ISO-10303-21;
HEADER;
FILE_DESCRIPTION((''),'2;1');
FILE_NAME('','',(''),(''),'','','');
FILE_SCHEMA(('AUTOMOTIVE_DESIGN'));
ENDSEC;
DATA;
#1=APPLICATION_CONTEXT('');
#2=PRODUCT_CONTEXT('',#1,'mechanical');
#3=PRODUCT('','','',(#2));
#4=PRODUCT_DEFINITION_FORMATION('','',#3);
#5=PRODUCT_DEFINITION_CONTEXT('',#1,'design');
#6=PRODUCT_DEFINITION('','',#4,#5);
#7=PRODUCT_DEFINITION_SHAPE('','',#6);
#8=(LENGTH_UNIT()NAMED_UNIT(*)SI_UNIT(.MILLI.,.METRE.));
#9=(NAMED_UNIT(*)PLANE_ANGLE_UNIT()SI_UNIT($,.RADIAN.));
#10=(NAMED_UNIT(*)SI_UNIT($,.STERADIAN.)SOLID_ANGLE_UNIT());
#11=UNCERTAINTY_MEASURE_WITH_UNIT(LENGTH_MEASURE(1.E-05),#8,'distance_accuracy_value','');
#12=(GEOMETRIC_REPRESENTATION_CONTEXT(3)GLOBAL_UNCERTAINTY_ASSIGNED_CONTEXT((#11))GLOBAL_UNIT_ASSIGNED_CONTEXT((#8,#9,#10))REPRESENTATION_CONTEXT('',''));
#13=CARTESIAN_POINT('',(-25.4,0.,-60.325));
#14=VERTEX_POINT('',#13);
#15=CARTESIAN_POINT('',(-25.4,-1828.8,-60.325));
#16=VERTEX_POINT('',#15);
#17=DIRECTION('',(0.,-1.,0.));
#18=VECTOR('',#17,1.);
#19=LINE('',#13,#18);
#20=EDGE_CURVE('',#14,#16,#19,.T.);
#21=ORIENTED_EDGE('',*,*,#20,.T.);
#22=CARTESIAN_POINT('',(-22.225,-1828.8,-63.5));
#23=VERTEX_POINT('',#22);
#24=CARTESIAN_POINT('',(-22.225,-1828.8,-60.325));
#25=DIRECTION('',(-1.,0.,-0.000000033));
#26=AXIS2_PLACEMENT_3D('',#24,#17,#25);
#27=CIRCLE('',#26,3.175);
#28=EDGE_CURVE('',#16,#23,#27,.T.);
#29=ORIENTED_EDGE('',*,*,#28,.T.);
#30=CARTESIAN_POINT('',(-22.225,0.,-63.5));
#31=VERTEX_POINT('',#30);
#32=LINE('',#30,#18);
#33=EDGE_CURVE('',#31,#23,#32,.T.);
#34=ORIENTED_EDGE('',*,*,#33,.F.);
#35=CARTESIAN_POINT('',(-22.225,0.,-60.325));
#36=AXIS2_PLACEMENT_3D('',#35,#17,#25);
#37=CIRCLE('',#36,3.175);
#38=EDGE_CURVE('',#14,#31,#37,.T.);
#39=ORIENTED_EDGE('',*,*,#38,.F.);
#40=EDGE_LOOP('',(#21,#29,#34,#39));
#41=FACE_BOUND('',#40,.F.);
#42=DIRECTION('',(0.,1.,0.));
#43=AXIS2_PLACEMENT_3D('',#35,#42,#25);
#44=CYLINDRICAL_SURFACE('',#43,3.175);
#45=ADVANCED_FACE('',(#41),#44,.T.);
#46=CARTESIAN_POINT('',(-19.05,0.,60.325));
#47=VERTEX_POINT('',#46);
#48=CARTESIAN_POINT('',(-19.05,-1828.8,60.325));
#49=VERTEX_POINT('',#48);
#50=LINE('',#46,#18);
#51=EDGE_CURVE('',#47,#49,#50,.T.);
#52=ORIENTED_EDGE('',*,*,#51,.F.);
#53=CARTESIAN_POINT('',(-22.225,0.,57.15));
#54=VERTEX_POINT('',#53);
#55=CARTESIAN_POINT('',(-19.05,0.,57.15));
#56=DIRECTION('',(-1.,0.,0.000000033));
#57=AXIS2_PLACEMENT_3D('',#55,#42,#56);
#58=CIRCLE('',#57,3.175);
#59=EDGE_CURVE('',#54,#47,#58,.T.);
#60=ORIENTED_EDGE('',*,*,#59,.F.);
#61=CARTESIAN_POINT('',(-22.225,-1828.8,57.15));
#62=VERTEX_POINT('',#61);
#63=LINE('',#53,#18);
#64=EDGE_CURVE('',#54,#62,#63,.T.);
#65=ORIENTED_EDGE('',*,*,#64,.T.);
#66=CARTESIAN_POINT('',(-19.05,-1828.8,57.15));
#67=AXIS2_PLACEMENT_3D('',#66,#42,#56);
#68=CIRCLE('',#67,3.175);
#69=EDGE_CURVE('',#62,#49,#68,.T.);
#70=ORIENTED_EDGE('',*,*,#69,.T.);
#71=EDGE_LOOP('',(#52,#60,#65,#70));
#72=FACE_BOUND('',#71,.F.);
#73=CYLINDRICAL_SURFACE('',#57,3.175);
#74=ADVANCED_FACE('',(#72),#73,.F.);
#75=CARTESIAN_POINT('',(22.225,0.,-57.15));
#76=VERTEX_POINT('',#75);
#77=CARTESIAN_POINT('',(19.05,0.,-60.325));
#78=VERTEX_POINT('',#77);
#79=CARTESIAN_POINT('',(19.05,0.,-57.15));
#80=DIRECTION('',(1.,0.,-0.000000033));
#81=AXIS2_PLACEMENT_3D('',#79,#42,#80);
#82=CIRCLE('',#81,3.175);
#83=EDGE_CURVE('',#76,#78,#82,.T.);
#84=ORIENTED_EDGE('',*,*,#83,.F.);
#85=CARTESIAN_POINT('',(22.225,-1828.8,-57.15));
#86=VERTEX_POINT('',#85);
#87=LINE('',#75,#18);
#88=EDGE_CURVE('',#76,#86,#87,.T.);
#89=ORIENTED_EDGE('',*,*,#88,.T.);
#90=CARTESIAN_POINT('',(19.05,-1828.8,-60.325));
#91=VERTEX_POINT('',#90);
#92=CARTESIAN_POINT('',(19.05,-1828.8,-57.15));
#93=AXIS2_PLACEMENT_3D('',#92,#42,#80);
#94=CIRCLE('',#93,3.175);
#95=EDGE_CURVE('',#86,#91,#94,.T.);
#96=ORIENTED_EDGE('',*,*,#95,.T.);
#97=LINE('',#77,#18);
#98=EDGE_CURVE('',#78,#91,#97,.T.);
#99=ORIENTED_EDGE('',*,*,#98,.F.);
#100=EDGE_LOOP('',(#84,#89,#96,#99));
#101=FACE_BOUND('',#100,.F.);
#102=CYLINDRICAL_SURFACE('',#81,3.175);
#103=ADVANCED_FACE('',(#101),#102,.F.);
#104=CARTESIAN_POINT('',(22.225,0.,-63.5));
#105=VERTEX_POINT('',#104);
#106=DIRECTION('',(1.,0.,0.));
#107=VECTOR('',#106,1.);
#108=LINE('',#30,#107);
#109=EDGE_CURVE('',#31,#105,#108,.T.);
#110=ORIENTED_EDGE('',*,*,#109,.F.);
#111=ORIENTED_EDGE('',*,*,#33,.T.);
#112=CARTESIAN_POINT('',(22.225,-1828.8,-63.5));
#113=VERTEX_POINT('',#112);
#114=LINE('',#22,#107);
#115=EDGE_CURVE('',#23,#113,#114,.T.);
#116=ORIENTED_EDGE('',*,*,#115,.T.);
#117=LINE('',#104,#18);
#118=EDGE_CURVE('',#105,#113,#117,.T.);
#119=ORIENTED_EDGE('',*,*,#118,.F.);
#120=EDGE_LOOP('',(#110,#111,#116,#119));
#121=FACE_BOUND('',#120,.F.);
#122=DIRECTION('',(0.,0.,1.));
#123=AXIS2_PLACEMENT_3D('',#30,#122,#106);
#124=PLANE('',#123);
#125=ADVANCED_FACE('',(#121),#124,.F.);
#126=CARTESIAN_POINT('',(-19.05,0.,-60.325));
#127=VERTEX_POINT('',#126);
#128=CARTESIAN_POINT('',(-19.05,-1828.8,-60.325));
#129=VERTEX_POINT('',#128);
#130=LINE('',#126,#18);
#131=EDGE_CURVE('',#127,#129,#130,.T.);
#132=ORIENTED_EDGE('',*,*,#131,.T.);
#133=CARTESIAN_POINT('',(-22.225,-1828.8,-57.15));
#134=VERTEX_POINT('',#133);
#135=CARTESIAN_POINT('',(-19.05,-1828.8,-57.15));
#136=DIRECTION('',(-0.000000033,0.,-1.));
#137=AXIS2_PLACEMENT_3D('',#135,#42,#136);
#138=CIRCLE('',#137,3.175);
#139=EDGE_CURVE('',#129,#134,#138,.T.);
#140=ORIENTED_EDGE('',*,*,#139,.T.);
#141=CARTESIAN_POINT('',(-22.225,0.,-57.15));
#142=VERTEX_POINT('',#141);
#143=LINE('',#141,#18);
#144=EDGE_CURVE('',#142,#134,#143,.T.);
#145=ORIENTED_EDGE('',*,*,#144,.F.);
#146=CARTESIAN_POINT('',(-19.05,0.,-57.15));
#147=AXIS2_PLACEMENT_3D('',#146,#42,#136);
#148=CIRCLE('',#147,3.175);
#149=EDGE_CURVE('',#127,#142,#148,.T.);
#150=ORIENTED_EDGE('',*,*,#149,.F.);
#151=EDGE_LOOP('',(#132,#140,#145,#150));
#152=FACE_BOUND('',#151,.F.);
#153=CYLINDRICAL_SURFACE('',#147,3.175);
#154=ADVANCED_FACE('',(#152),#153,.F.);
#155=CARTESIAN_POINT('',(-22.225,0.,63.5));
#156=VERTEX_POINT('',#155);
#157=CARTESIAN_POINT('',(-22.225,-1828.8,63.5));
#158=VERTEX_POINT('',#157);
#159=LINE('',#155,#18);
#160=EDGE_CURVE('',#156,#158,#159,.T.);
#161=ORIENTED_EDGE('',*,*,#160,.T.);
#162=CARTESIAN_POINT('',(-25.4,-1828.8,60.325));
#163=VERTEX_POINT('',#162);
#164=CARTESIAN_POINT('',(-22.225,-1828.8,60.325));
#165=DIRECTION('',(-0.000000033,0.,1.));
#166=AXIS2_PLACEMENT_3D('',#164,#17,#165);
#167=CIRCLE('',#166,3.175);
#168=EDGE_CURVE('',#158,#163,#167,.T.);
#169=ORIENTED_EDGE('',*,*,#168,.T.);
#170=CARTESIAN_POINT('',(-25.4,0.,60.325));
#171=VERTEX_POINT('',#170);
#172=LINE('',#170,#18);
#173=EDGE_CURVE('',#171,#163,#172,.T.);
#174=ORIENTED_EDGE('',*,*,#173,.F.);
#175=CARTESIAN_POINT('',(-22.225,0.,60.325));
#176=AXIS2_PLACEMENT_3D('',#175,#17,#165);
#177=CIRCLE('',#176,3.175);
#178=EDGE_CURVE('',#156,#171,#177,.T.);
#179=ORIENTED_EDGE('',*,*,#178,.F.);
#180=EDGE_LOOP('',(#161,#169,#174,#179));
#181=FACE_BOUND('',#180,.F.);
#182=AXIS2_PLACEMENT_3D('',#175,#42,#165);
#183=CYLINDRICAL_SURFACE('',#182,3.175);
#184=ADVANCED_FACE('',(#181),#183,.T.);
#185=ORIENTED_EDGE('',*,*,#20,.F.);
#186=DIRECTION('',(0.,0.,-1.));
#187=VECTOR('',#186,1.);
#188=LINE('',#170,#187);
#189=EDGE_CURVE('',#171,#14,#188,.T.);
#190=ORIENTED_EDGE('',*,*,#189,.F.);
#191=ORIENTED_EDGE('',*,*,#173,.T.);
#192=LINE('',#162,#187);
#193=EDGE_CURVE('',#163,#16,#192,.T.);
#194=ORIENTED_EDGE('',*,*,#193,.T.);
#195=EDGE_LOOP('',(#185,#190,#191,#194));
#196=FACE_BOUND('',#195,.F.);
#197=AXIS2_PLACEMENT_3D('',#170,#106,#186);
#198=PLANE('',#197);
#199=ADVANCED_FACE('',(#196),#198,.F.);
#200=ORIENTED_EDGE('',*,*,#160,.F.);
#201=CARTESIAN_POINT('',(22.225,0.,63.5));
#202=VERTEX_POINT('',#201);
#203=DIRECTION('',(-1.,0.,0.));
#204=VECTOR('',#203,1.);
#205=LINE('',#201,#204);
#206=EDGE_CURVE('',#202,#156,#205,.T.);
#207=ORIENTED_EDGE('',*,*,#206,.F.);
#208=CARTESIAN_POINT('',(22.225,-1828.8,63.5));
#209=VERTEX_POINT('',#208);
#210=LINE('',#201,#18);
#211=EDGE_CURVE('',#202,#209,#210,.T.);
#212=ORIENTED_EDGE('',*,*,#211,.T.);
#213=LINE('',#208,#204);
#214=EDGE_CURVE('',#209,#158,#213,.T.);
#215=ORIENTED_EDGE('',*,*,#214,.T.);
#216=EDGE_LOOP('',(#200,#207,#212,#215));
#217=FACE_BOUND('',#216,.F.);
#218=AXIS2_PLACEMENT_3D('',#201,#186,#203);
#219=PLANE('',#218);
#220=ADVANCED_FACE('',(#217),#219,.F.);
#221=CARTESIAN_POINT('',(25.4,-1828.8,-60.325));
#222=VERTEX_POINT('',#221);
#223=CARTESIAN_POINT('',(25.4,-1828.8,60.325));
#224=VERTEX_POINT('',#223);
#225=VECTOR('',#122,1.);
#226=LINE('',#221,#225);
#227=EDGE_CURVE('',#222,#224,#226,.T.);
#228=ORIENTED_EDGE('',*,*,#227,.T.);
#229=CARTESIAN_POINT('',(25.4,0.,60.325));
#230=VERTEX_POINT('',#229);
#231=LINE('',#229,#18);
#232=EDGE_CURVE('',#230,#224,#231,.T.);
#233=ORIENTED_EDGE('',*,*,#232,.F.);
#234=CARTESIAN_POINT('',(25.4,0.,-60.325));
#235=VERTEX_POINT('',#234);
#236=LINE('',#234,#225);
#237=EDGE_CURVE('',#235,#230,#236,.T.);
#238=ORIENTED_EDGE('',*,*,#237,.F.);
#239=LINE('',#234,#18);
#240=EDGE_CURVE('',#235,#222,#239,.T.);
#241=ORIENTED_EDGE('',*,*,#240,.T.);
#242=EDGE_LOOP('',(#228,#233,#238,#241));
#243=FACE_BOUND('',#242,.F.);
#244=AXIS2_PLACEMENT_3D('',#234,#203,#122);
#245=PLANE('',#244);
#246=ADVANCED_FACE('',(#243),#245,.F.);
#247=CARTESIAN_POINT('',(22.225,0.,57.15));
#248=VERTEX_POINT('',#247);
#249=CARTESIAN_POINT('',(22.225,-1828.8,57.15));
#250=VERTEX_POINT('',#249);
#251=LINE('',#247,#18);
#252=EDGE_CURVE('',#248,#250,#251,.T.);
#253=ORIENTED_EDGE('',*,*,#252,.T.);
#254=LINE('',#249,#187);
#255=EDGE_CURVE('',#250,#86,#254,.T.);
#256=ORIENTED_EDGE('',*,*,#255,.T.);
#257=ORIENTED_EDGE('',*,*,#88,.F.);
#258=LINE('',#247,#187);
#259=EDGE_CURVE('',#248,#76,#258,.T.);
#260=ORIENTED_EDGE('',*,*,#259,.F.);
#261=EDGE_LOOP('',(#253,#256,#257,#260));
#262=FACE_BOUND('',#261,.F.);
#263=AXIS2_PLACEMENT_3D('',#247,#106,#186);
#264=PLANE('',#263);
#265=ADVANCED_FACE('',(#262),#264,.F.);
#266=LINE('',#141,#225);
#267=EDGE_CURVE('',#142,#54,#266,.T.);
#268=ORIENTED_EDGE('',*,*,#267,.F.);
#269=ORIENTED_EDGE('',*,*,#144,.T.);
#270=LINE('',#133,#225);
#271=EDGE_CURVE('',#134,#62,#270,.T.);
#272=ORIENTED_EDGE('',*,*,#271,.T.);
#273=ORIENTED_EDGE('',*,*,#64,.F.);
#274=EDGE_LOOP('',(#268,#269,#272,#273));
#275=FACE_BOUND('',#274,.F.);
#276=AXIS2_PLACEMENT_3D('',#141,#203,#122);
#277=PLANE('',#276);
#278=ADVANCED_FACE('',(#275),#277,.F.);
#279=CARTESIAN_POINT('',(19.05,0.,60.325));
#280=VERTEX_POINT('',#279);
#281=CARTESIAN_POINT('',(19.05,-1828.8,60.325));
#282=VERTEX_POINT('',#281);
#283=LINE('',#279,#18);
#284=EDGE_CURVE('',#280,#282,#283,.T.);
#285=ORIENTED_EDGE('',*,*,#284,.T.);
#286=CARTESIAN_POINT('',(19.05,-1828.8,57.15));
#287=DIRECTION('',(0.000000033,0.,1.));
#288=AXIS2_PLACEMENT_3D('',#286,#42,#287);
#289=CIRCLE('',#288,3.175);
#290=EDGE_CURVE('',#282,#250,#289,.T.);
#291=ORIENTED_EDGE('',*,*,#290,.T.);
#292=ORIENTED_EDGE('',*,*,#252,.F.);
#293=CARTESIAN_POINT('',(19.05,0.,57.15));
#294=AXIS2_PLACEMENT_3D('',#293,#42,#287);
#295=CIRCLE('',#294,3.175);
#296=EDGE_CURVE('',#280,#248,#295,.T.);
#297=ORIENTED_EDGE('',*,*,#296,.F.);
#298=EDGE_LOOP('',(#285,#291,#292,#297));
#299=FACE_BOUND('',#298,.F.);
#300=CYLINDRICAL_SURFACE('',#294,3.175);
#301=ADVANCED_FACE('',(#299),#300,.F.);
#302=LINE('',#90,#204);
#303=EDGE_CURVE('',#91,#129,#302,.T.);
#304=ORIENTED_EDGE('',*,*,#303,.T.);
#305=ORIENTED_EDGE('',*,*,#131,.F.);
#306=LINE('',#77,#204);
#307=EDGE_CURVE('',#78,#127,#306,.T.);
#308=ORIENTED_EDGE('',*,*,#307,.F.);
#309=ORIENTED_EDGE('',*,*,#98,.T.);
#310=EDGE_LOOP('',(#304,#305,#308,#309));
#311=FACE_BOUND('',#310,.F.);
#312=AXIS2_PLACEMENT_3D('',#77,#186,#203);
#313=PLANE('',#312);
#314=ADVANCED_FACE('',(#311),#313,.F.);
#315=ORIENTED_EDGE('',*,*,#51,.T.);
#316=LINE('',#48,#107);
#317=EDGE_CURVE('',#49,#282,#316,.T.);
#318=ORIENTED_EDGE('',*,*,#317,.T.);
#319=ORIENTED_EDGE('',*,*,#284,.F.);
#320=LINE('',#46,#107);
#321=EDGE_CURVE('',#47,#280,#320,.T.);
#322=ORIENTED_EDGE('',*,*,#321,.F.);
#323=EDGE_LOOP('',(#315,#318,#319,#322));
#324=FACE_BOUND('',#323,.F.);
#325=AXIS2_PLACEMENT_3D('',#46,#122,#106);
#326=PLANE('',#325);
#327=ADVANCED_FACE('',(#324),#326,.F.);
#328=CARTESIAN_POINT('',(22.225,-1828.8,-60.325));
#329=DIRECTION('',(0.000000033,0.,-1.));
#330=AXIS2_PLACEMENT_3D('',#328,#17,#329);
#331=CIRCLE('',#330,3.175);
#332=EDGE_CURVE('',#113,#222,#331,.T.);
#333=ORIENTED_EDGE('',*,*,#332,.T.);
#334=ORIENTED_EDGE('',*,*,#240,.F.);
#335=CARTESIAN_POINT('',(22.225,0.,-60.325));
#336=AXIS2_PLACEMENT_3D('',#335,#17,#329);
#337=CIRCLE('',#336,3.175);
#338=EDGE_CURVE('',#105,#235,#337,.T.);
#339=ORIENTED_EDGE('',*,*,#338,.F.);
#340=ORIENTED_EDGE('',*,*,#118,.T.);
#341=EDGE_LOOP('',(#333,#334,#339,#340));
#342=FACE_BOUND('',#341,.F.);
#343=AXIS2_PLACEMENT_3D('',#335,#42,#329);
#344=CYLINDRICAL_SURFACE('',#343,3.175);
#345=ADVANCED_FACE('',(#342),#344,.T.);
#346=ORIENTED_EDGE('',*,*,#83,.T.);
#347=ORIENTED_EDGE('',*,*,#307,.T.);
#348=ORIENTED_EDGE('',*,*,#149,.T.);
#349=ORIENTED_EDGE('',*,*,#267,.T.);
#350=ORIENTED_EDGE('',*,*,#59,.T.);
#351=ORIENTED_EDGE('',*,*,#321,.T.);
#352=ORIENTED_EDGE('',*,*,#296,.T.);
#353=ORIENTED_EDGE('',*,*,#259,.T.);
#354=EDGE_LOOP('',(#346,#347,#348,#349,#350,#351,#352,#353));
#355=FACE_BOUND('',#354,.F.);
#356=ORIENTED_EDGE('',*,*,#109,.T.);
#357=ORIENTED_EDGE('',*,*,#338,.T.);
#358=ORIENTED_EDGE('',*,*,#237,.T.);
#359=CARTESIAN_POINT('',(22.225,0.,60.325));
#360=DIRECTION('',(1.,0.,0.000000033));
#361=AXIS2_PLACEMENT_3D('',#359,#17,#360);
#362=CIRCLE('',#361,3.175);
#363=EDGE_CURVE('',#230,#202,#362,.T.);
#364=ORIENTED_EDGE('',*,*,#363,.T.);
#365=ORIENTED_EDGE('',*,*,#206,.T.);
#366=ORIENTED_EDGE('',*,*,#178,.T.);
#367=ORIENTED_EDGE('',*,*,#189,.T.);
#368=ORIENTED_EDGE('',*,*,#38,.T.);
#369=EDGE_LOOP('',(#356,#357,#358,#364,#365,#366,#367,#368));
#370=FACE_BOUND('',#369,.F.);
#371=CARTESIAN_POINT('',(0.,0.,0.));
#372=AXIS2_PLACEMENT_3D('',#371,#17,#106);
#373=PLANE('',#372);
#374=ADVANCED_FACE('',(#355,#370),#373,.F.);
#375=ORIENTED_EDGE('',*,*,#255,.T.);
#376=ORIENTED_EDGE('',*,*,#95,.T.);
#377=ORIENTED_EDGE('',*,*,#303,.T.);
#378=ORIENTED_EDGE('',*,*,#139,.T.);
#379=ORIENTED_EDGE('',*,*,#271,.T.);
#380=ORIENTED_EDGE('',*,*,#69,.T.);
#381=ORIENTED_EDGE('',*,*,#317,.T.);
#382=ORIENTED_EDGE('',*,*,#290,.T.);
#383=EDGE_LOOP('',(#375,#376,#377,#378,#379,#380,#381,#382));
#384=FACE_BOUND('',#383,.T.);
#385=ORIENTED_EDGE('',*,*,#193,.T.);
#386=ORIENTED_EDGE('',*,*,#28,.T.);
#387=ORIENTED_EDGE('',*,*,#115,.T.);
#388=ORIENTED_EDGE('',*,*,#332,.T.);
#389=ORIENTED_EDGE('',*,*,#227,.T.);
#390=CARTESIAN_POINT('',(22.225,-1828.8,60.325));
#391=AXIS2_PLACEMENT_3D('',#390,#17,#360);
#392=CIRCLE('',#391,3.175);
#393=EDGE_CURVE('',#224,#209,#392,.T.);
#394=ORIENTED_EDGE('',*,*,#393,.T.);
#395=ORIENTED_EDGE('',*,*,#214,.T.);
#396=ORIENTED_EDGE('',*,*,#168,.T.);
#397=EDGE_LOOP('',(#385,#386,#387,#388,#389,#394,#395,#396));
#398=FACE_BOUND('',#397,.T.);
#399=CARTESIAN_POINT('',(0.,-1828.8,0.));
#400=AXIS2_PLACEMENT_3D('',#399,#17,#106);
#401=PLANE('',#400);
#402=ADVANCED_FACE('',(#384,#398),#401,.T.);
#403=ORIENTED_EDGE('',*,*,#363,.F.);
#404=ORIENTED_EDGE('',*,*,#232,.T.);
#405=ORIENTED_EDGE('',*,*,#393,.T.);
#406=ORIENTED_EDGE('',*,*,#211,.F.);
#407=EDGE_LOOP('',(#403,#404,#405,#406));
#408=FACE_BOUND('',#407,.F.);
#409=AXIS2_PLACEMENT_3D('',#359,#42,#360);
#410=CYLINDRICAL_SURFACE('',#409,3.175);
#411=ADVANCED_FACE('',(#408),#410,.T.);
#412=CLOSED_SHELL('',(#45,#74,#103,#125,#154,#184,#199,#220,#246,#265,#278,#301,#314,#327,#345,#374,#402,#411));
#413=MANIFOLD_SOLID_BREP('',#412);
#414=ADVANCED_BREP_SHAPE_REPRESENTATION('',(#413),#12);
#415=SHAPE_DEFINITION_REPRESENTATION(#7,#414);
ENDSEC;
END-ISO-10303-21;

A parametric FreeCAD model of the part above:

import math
import FreeCAD as App
import Part
import Sketcher

V = App.Vector
Q = App.Units.Quantity

doc = App.newDocument("Part")
body = doc.addObject("PartDesign::Body", "Body")

# Sketch on XZ plane
sketch1 = body.newObject("Sketcher::SketchObject", "Sketch")
sketch1.AttachmentSupport = (doc.getObject("XZ_Plane"), [""])
sketch1.MapMode = "FlatFace"
sketch1.addGeometry(Part.ArcOfCircle(Part.Circle(V(22.2, 60.3, 0), V(0, 0, 1), 3.2), math.radians(0), math.radians(90)), False)
sketch1.addGeometry(Part.LineSegment(V(22.2, 63.5, 0), V(-22.2, 63.5, 0)), False)
sketch1.addGeometry(Part.ArcOfCircle(Part.Circle(V(-22.2, 60.3, 0), V(0, 0, 1), 3.2), math.radians(90), math.radians(180)), False)
sketch1.addGeometry(Part.LineSegment(V(-25.4, 60.3, 0), V(-25.4, -60.3, 0)), False)
sketch1.addGeometry(Part.ArcOfCircle(Part.Circle(V(-22.2, -60.3, 0), V(0, 0, 1), 3.2), math.radians(-180), math.radians(-90)), False)
sketch1.addGeometry(Part.LineSegment(V(-22.2, -63.5, 0), V(22.2, -63.5, 0)), False)
sketch1.addGeometry(Part.ArcOfCircle(Part.Circle(V(22.2, -60.3, 0), V(0, 0, 1), 3.2), math.radians(-90), math.radians(0)), False)
sketch1.addGeometry(Part.LineSegment(V(25.4, -60.3, 0), V(25.4, 60.3, 0)), False)
sketch1.addGeometry(Part.ArcOfCircle(Part.Circle(V(-19, 57.1, 0), V(0, 0, 1), 3.2), math.radians(90), math.radians(180)), False)
sketch1.addGeometry(Part.LineSegment(V(-19.1, 60.3, 0), V(19.1, 60.3, 0)), False)
sketch1.addGeometry(Part.ArcOfCircle(Part.Circle(V(19, 57.1, 0), V(0, 0, 1), 3.2), math.radians(0), math.radians(90)), False)
sketch1.addGeometry(Part.LineSegment(V(22.2, 57.1, 0), V(22.2, -57.1, 0)), False)
sketch1.addGeometry(Part.ArcOfCircle(Part.Circle(V(19, -57.1, 0), V(0, 0, 1), 3.2), math.radians(-90), math.radians(0)), False)
sketch1.addGeometry(Part.LineSegment(V(19.1, -60.3, 0), V(-19.1, -60.3, 0)), False)
sketch1.addGeometry(Part.ArcOfCircle(Part.Circle(V(-19, -57.1, 0), V(0, 0, 1), 3.2), math.radians(-180), math.radians(-90)), False)
sketch1.addGeometry(Part.LineSegment(V(-22.2, -57.1, 0), V(-22.2, 57.1, 0)), False)
sketch1.addConstraint(Sketcher.Constraint("Tangent", 0, 2, 1, 1))
sketch1.addConstraint(Sketcher.Constraint("Tangent", 1, 2, 2, 1))
sketch1.addConstraint(Sketcher.Constraint("Tangent", 2, 2, 3, 1))
sketch1.addConstraint(Sketcher.Constraint("Tangent", 3, 2, 4, 1))
sketch1.addConstraint(Sketcher.Constraint("Tangent", 4, 2, 5, 1))
sketch1.addConstraint(Sketcher.Constraint("Tangent", 5, 2, 6, 1))
sketch1.addConstraint(Sketcher.Constraint("Tangent", 6, 2, 7, 1))
sketch1.addConstraint(Sketcher.Constraint("Tangent", 7, 2, 0, 1))
sketch1.addConstraint(Sketcher.Constraint("Tangent", 8, 1, 9, 1))
sketch1.addConstraint(Sketcher.Constraint("Tangent", 9, 2, 10, 2))
sketch1.addConstraint(Sketcher.Constraint("Tangent", 10, 1, 11, 1))
sketch1.addConstraint(Sketcher.Constraint("Tangent", 11, 2, 12, 2))
sketch1.addConstraint(Sketcher.Constraint("Tangent", 12, 1, 13, 1))
sketch1.addConstraint(Sketcher.Constraint("Tangent", 13, 2, 14, 2))
sketch1.addConstraint(Sketcher.Constraint("Tangent", 14, 1, 15, 1))
sketch1.addConstraint(Sketcher.Constraint("Tangent", 15, 2, 8, 2))
sketch1.addConstraint(Sketcher.Constraint("Horizontal", 1))
sketch1.addConstraint(Sketcher.Constraint("Vertical", 3))
sketch1.addConstraint(Sketcher.Constraint("Horizontal", 5))
sketch1.addConstraint(Sketcher.Constraint("Vertical", 7))
sketch1.addConstraint(Sketcher.Constraint("Horizontal", 9))
sketch1.addConstraint(Sketcher.Constraint("Vertical", 11))
sketch1.addConstraint(Sketcher.Constraint("Horizontal", 13))
sketch1.addConstraint(Sketcher.Constraint("Vertical", 15))
sketch1.addConstraint(Sketcher.Constraint("Equal", 0, 2))
sketch1.addConstraint(Sketcher.Constraint("Equal", 2, 4))
sketch1.addConstraint(Sketcher.Constraint("Equal", 4, 6))
sketch1.addConstraint(Sketcher.Constraint("Equal", 6, 8))
sketch1.addConstraint(Sketcher.Constraint("Equal", 8, 10))
sketch1.addConstraint(Sketcher.Constraint("Equal", 10, 12))
sketch1.addConstraint(Sketcher.Constraint("Equal", 12, 14))
sketch1.addConstraint(Sketcher.Constraint("Symmetric", 0, 3, 4, 3, -1, 1))
sketch1.addConstraint(Sketcher.Constraint("Symmetric", 8, 3, 12, 3, -1, 1))
sketch1.addConstraint(Sketcher.Constraint("Horizontal", 7, 2, 8, 1))
sketch1.addConstraint(Sketcher.Constraint("Vertical", 5, 2, 10, 1))
sketch1.addConstraint(Sketcher.Constraint("DistanceX", 9, 1, 9, 2, Q("1.5 in")))
sketch1.addConstraint(Sketcher.Constraint("DistanceY", 11, 2, 11, 1, Q("4.5 in")))
sketch1.addConstraint(Sketcher.Constraint("DistanceX", 2, 2, -1, 1, Q("1 in")))
pad1 = body.newObject("PartDesign::Pad", "Pad")
pad1.Profile = sketch1
pad1.Length = Q("72 in")

doc.recompute()
